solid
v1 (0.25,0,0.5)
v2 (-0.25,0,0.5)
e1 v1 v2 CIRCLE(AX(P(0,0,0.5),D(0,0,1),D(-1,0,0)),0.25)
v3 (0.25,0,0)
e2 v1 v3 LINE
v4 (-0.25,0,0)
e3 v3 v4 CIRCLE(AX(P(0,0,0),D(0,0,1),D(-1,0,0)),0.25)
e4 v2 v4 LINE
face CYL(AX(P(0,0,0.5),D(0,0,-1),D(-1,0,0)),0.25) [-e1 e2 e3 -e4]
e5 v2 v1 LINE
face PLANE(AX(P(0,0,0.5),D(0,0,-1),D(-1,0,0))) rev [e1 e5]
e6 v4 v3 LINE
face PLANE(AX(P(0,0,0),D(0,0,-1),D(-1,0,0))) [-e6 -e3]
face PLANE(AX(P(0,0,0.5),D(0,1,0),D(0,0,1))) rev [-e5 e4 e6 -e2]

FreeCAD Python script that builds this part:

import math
import FreeCAD as App
import Part
import Sketcher
from FreeCAD import Vector
Q = App.Units.Quantity

doc = App.newDocument("Part")
body = doc.addObject("PartDesign::Body", "Body")

# Sketch on XY plane
sketch1 = body.newObject("Sketcher::SketchObject", "Sketch")
sketch1.AttachmentSupport = (doc.getObject("XY_Plane"), [""])
sketch1.MapMode = "FlatFace"
sketch1.addGeometry(Part.ArcOfCircle(Part.Circle(Vector(0, 0, 0), Vector(0, 0, 1), 0.25), math.radians(0), math.radians(180)), False)
sketch1.addGeometry(Part.LineSegment(Vector(-0.25, 0, 0), Vector(0.25, 0, 0)), False)
sketch1.addConstraint(Sketcher.Constraint("Coincident", 0, 1, 1, 2))
sketch1.addConstraint(Sketcher.Constraint("Coincident", 1, 1, 0, 2))
sketch1.addConstraint(Sketcher.Constraint("Horizontal", 1))
sketch1.addConstraint(Sketcher.Constraint("Coincident", 0, 3, -1, 1))
sketch1.addConstraint(Sketcher.Constraint("PointOnObject", 0, 1, -1))
sketch1.addConstraint(Sketcher.Constraint("Radius", 0, Q("0.25 mm")))
pad1 = body.newObject("PartDesign::Pad", "Pad")
pad1.Profile = sketch1
pad1.Length = 0.5

doc.recompute()
